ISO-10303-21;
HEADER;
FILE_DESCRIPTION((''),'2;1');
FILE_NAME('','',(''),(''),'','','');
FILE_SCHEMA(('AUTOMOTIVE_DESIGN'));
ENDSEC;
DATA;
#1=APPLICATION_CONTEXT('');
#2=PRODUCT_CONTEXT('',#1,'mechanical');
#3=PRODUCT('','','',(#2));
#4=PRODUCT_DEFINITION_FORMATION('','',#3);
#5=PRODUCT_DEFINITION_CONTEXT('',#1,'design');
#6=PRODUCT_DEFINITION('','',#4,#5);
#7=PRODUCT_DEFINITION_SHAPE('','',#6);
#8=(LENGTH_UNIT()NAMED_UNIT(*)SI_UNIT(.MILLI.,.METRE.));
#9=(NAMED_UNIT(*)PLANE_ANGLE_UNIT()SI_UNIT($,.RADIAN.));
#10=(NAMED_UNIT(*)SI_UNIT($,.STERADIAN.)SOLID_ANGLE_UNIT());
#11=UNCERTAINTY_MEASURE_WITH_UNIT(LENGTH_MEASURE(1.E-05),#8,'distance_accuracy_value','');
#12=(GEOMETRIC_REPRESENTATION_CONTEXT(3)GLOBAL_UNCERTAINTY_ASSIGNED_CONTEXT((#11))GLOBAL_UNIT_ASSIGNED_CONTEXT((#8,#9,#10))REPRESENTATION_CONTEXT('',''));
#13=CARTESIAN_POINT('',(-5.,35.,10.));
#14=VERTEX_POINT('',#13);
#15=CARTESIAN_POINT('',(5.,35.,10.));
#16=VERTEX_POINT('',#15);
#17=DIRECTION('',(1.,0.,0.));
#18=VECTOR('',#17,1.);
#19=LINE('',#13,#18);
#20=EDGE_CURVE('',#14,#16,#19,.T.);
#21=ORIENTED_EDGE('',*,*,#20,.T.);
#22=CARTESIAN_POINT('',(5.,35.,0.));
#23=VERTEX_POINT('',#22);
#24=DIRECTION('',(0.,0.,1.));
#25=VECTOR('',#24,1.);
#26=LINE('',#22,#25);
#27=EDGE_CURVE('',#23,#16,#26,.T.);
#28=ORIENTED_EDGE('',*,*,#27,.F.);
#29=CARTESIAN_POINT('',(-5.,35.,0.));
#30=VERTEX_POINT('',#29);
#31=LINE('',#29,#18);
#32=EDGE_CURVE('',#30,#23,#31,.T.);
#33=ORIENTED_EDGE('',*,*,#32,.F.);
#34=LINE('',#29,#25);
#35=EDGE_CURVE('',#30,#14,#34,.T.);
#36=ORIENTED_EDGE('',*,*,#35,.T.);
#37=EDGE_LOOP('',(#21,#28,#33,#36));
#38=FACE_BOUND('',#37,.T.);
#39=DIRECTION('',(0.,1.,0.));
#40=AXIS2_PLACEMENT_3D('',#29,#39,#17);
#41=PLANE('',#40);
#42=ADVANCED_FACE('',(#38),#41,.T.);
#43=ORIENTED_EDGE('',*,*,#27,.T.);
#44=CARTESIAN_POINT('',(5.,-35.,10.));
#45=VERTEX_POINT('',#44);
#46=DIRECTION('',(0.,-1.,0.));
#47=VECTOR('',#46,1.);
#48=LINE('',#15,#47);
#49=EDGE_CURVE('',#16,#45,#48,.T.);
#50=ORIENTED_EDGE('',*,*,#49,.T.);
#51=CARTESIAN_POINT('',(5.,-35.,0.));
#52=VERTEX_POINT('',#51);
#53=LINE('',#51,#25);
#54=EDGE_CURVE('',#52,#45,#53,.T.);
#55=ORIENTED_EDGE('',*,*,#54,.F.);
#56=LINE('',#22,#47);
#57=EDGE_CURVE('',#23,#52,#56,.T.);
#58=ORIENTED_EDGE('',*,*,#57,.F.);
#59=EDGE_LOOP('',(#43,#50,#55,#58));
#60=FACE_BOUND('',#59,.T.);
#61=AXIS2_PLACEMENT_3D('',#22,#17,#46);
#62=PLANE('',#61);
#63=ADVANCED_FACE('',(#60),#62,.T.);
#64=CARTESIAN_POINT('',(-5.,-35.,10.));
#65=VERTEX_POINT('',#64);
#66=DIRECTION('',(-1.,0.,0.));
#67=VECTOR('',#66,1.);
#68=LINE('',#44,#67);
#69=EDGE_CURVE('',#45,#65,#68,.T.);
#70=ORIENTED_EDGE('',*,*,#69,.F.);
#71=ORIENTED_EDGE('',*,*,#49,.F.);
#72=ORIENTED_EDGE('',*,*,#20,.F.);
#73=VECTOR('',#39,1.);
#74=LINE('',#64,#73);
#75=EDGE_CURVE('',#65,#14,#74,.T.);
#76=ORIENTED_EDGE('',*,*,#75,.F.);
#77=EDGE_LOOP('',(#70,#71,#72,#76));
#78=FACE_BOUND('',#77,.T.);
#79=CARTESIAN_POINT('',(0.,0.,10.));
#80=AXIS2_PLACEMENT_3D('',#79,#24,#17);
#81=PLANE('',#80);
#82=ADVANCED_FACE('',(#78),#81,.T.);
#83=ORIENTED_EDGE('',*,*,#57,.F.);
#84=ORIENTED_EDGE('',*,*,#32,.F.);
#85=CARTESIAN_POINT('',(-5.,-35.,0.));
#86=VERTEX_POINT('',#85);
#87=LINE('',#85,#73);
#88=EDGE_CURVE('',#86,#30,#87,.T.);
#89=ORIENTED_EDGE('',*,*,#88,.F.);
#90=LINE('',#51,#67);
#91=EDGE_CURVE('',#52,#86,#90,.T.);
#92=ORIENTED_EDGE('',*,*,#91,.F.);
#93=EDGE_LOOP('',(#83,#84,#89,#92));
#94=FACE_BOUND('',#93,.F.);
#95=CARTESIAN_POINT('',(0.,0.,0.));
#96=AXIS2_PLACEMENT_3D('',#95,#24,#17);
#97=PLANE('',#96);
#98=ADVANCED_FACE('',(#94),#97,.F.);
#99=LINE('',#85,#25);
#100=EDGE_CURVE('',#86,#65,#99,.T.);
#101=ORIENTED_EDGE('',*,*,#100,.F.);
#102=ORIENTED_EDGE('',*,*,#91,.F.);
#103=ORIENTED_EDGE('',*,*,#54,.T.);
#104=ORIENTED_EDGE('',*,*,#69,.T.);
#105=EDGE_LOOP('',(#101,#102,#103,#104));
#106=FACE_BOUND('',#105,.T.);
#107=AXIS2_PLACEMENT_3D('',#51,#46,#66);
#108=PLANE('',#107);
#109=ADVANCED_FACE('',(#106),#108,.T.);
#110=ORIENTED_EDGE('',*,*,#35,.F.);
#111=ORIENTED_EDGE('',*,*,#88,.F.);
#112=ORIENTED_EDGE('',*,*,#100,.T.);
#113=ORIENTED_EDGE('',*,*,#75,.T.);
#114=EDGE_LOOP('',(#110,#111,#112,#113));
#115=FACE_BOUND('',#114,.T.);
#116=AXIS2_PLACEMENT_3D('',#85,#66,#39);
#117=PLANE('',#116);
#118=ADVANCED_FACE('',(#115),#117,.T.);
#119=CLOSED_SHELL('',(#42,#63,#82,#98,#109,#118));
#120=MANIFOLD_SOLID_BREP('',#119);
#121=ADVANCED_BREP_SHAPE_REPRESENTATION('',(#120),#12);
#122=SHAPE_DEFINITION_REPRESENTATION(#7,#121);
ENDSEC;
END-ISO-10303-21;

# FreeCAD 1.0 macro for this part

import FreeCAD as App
import Part
import Sketcher
Q = App.Units.Quantity


def add_polygon(sketch, points):
    """Adds a closed chain of lines whose ends are joined by coincident constraints."""
    first, n = sketch.GeometryCount, len(points)
    for a, b in zip(points, points[1:] + points[:1]):
        sketch.addGeometry(Part.LineSegment(App.Vector(*a, 0), App.Vector(*b, 0)), False)
    for i in range(n):
        sketch.addConstraint(Sketcher.Constraint("Coincident", first + i, 2, first + (i + 1) % n, 1))

doc = App.newDocument("Part")
body = doc.addObject("PartDesign::Body", "Body")

sketch1 = doc.addObject("Sketcher::SketchObject", "Sketch")
body.addObject(sketch1)
sketch1.AttachmentSupport = (doc.XY_Plane, [""])
sketch1.MapMode = "FlatFace"
add_polygon(sketch1, [(-5, -35), (5, -35), (5, 35), (-5, 35)])
sketch1.addConstraint([
    Sketcher.Constraint("Horizontal", 0),
    Sketcher.Constraint("Vertical", 1),
    Sketcher.Constraint("Horizontal", 2),
    Sketcher.Constraint("Vertical", 3),
    Sketcher.Constraint("Symmetric", 0, 2, 2, 2, -1, 1),
    Sketcher.Constraint("DistanceX", 0, 1, 0, 2, Q("10 mm")),
    Sketcher.Constraint("DistanceY", 1, 1, 1, 2, Q("70 mm")),
])
pad1 = doc.addObject("PartDesign::Pad", "Pad")
body.addObject(pad1)
pad1.Profile = sketch1
pad1.Length = 10

doc.recompute()
